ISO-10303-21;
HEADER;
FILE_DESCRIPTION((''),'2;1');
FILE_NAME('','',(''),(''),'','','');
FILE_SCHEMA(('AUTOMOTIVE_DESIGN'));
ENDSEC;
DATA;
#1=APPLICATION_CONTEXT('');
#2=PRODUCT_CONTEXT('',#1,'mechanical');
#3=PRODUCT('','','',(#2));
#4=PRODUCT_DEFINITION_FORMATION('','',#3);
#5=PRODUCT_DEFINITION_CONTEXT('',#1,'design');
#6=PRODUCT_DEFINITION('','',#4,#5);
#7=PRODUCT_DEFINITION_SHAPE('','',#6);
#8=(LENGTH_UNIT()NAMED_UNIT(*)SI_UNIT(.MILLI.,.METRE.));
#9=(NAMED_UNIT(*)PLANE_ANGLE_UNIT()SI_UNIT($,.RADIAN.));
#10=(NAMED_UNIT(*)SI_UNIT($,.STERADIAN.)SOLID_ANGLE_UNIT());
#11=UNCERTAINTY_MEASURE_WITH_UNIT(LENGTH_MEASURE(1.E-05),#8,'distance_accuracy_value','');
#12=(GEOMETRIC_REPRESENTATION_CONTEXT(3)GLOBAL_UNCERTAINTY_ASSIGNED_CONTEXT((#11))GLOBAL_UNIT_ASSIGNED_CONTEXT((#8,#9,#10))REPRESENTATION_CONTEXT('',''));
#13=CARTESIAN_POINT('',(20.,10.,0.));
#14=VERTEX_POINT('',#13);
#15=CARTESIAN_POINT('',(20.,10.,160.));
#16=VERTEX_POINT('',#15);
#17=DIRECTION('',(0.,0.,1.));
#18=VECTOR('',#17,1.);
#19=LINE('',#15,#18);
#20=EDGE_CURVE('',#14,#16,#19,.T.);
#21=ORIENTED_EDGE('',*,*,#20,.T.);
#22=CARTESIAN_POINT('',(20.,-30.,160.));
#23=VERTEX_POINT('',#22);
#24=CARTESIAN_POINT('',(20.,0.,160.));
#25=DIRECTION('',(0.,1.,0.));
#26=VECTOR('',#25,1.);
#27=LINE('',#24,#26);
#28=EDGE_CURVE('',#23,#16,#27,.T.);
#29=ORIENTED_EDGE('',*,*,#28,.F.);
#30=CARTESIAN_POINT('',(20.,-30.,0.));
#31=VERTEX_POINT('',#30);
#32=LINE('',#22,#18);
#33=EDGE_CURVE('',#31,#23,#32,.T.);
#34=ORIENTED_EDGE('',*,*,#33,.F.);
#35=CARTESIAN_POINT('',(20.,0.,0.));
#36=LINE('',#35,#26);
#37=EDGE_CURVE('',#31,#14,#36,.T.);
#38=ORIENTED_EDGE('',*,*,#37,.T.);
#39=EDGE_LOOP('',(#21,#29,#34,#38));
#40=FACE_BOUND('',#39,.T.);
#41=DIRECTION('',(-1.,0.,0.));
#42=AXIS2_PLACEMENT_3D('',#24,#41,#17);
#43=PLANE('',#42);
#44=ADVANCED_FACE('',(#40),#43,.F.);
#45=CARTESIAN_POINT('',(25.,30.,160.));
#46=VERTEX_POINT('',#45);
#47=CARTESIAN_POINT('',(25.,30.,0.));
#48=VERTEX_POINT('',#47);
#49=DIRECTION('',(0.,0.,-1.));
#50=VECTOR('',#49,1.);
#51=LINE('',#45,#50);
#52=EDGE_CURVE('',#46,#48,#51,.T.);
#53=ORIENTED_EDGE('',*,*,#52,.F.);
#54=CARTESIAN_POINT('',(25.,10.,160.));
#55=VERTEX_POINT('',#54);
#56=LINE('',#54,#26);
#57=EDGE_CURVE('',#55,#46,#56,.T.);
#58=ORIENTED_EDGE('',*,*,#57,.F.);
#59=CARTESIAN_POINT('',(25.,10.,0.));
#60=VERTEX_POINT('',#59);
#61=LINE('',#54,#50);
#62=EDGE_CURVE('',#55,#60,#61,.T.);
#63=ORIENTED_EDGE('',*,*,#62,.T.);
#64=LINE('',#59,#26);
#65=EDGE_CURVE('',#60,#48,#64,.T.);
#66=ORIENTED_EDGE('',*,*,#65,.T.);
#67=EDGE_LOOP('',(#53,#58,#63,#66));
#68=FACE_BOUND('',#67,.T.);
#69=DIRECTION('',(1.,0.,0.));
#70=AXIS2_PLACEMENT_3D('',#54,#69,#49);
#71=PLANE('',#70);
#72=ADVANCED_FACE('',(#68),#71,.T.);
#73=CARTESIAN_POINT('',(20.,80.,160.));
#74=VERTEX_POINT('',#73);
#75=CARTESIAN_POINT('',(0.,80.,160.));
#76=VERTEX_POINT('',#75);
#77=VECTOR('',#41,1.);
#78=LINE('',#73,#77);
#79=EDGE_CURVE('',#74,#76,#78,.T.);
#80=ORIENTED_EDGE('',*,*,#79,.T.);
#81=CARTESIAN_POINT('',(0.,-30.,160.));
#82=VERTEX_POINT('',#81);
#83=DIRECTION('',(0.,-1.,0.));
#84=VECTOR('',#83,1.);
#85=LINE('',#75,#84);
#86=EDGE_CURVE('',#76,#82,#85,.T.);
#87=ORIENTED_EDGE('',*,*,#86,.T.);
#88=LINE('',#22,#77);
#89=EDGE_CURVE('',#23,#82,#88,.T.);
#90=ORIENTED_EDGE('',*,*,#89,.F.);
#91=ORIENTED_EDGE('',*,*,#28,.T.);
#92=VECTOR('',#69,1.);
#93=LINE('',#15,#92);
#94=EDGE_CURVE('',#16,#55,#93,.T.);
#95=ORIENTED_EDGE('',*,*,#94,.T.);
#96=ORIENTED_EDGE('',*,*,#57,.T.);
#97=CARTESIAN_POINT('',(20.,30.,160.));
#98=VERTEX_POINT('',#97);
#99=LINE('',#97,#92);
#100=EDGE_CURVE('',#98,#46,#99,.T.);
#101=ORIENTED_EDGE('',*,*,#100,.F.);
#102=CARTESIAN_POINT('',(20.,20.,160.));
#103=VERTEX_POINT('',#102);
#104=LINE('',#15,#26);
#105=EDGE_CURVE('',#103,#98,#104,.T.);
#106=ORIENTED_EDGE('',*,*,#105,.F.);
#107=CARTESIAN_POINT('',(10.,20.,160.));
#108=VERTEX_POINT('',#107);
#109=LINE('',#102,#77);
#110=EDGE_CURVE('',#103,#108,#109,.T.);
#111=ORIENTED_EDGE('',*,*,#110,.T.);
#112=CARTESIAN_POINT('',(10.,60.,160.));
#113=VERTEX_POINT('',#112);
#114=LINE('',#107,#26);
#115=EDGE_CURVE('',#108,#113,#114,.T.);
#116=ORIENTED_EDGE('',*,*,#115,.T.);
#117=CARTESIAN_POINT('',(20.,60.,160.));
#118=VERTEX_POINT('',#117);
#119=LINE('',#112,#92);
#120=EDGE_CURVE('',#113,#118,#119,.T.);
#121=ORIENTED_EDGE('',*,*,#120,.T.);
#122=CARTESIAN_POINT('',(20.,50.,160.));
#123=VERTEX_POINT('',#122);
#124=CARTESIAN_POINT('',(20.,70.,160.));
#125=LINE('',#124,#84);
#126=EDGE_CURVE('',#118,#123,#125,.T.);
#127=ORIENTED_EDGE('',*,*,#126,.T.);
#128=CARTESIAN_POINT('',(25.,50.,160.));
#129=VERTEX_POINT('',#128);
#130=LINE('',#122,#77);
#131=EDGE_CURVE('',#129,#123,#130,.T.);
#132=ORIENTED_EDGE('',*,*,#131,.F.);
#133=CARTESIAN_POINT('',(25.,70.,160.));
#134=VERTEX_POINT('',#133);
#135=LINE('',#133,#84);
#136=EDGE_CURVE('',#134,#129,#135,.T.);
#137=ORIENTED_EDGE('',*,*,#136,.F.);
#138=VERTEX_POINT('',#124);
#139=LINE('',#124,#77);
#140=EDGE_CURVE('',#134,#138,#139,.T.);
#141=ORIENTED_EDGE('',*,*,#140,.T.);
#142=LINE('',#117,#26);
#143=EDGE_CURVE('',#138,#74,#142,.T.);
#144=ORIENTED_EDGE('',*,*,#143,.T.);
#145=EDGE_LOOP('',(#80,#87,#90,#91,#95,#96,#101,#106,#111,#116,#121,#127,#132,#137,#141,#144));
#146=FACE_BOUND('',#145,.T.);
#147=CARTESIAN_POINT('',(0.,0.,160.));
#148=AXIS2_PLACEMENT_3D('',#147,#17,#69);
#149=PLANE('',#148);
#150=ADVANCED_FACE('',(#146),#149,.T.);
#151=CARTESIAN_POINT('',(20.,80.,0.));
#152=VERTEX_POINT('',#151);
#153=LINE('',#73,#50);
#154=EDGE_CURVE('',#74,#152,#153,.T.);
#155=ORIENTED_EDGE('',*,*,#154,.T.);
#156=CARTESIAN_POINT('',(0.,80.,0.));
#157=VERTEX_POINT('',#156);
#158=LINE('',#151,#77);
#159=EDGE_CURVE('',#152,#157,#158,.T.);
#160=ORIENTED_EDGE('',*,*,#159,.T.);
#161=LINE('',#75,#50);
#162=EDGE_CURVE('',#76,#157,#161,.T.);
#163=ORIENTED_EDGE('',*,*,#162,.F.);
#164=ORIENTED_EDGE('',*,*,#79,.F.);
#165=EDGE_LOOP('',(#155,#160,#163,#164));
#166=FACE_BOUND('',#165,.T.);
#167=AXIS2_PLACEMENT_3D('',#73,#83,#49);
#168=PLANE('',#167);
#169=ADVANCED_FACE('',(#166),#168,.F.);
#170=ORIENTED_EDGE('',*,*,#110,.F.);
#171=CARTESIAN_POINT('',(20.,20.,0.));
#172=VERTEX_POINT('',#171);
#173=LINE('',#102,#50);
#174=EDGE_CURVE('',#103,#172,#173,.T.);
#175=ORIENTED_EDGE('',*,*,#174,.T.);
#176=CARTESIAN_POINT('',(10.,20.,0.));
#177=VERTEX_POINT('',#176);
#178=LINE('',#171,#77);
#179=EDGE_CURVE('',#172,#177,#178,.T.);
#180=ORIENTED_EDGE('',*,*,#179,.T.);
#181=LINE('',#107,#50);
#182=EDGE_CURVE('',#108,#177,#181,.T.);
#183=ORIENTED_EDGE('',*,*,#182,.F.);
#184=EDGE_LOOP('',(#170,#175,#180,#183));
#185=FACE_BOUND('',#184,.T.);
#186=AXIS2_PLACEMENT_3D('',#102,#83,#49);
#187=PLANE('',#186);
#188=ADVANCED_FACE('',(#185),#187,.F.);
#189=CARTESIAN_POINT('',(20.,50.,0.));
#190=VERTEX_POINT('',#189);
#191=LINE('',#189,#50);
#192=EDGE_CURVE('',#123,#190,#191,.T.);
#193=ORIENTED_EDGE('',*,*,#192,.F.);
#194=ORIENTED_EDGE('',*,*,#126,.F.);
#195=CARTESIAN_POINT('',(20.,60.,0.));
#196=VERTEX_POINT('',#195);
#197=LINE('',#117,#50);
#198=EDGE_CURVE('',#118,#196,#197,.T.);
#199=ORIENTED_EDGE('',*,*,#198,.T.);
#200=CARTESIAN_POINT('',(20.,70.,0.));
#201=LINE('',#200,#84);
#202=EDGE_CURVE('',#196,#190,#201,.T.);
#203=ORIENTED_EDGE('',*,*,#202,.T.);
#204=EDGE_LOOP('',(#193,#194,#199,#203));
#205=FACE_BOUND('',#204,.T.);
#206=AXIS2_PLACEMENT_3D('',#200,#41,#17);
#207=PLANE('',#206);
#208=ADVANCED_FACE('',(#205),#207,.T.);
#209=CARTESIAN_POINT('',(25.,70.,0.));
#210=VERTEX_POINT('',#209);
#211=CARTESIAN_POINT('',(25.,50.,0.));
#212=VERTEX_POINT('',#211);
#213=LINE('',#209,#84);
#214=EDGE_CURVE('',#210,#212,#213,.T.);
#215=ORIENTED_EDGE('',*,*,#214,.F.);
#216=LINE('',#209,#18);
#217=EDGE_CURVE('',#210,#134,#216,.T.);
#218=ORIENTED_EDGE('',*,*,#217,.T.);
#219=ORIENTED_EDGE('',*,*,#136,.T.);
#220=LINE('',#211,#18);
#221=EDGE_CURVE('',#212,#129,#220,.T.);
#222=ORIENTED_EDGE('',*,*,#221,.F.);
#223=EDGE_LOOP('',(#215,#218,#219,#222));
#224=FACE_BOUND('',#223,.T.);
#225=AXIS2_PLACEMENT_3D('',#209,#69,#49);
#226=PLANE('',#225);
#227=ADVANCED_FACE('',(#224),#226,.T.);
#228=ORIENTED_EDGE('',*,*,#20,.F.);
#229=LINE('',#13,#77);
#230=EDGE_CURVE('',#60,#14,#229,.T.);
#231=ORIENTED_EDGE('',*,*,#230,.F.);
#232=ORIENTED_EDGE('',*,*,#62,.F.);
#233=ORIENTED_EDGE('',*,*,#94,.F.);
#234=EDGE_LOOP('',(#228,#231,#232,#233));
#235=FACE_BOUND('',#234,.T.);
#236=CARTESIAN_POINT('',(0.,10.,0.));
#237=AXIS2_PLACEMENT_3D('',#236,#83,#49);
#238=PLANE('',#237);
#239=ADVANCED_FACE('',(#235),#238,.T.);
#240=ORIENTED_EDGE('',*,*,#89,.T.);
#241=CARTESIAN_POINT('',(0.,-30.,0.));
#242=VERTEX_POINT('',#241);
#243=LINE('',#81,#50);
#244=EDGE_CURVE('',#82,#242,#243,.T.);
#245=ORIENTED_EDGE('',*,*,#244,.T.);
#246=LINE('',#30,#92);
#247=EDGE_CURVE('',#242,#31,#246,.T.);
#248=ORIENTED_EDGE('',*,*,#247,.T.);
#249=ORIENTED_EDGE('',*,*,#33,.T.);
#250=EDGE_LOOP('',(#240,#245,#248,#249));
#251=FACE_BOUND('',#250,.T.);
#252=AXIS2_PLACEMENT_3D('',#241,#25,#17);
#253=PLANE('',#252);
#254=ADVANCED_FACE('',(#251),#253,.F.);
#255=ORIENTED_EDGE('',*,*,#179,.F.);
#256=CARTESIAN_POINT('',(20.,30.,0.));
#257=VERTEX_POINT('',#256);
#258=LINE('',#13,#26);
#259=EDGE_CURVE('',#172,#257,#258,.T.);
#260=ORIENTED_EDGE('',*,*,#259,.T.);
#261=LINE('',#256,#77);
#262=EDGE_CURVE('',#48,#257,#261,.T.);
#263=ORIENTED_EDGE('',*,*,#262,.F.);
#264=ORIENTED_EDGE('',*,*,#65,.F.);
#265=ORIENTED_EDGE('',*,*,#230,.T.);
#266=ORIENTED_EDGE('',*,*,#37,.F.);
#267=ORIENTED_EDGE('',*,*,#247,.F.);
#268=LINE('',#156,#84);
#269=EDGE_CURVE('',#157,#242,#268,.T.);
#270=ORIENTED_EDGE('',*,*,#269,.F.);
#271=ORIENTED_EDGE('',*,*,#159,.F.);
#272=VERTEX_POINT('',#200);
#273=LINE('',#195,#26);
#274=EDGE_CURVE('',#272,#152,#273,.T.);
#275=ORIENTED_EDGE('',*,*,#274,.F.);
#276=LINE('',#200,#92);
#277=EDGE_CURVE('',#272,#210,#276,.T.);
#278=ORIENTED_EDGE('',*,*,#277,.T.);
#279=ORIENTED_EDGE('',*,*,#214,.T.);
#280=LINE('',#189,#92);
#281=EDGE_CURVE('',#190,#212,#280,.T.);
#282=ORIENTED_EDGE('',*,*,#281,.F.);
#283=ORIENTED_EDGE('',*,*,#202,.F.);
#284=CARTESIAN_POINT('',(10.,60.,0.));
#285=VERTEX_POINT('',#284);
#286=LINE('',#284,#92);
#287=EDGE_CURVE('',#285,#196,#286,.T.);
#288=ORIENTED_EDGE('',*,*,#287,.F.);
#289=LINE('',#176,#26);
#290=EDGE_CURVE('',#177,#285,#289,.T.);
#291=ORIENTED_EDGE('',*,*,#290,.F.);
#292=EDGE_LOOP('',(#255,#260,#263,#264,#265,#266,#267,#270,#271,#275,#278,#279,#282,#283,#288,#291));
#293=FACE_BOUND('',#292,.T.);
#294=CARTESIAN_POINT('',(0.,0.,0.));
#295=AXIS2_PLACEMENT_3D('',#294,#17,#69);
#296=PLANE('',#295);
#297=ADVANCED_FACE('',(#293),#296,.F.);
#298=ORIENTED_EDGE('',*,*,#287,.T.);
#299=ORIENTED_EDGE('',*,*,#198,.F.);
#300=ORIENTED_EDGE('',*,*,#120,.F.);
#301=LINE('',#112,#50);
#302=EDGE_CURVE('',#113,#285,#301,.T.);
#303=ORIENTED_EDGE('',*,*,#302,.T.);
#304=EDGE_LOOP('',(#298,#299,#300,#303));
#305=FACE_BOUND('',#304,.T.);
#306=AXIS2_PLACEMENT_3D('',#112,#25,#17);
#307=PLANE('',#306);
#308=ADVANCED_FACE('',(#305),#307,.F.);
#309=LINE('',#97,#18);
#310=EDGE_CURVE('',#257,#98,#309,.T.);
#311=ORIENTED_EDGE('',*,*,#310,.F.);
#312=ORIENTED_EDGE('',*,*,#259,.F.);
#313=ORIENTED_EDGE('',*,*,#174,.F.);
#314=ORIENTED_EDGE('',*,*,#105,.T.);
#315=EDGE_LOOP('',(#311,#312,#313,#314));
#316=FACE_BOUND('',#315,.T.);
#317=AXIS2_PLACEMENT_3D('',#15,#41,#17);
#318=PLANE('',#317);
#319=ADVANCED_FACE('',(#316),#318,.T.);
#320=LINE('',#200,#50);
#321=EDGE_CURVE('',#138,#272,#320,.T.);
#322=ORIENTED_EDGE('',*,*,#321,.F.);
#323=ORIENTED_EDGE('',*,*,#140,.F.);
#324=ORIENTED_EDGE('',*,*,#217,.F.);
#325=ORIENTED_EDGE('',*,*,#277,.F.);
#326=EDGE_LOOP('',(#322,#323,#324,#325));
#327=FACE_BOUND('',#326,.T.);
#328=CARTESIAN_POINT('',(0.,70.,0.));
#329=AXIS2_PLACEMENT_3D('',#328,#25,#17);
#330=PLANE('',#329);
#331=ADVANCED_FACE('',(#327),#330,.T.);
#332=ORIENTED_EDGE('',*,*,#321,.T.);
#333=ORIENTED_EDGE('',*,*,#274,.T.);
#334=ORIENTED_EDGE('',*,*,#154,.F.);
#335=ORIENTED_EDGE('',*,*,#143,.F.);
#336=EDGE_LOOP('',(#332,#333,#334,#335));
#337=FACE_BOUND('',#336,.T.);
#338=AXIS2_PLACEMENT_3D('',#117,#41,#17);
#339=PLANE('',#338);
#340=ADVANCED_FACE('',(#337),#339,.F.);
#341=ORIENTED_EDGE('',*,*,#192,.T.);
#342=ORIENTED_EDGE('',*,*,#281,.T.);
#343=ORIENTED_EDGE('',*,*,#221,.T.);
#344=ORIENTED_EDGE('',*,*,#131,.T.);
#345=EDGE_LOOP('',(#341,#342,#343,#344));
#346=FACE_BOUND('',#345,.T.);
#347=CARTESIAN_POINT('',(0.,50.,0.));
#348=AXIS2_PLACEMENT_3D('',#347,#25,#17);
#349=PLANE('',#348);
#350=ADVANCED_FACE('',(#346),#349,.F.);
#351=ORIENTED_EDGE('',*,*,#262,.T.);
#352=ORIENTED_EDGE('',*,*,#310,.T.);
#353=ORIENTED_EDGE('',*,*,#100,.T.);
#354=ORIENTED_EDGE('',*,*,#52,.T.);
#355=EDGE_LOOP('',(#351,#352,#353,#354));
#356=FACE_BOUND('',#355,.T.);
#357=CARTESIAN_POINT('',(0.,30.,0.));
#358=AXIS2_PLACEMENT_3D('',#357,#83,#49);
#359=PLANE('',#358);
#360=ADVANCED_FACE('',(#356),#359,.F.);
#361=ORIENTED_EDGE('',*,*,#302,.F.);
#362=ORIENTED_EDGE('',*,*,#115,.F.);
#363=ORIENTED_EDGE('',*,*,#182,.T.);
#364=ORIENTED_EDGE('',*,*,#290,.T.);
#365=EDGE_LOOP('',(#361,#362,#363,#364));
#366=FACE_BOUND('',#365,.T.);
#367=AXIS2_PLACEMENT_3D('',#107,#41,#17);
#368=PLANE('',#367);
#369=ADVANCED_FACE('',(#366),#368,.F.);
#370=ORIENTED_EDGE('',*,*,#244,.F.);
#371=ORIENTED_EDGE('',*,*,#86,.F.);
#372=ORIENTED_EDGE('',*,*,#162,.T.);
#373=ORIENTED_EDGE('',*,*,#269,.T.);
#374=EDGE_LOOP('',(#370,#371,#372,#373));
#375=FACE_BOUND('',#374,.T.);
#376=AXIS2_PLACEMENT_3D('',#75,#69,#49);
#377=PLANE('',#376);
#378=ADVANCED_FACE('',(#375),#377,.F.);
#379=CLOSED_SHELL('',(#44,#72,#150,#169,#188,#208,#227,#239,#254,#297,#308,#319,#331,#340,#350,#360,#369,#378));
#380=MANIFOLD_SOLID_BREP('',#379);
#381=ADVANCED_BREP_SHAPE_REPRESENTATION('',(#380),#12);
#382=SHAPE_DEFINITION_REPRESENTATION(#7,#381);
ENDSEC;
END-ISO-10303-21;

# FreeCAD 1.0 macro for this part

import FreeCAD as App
import Part
import Sketcher

V = App.Vector
Q = App.Units.Quantity


def add_polygon(sketch, points):
    """Adds a closed chain of lines whose ends are joined by coincident constraints."""
    first, n = sketch.GeometryCount, len(points)
    for a, b in zip(points, points[1:] + points[:1]):
        sketch.addGeometry(Part.LineSegment(App.Vector(*a, 0), App.Vector(*b, 0)), False)
    for i in range(n):
        sketch.addConstraint(Sketcher.Constraint("Coincident", first + i, 2, first + (i + 1) % n, 1))

doc = App.newDocument("Part")
body = doc.addObject("PartDesign::Body", "Body")

# Sketch on XY plane
sketch1 = body.newObject("Sketcher::SketchObject", "Sketch")
sketch1.AttachmentSupport = (doc.getObject("XY_Plane"), [""])
sketch1.MapMode = "FlatFace"
add_polygon(sketch1, [(0, 0), (20, 0), (20, 20), (10, 20), (10, 60), (20, 60), (20, 80), (0, 80)])  # lines 0-7
sketch1.addConstraint([
    Sketcher.Constraint("Horizontal", 0),
    Sketcher.Constraint("Vertical", 1),
    Sketcher.Constraint("Horizontal", 2),
    Sketcher.Constraint("Vertical", 3),
    Sketcher.Constraint("Horizontal", 4),
    Sketcher.Constraint("Vertical", 5),
    Sketcher.Constraint("Horizontal", 6),
    Sketcher.Constraint("Vertical", 7),
    Sketcher.Constraint("Coincident", 7, 2, -1, 1),
    Sketcher.Constraint("Vertical", 1, 2, 4, 2),
    Sketcher.Constraint("Equal", 6, 1),
    Sketcher.Constraint("Equal", 1, 5),
    Sketcher.Constraint("DistanceX", 0, 1, 0, 2, Q("20 mm")),
    Sketcher.Constraint("DistanceX", 2, 2, 2, 1, Q("10 mm")),
    Sketcher.Constraint("DistanceY", 3, 1, 3, 2, Q("40 mm")),
])
pad1 = body.newObject("PartDesign::Pad", "Pad")
pad1.Profile = sketch1
pad1.Length = 160

# Sketch on XZ plane
sketch2 = body.newObject("Sketcher::SketchObject", "Sketch001")
sketch2.AttachmentSupport = (doc.getObject("XZ_Plane"), [""])
sketch2.MapMode = "FlatFace"
add_polygon(sketch2, [(0, 160), (0, 0), (20, 0), (20, 160)])  # lines 0-3
sketch2.addConstraint([
    Sketcher.Constraint("Vertical", 0),
    Sketcher.Constraint("Horizontal", 1),
    Sketcher.Constraint("Vertical", 2),
    Sketcher.Constraint("Horizontal", 3),
    Sketcher.Constraint("Coincident", 0, 2, -1, 1),
    Sketcher.Constraint("DistanceX", 1, 1, 1, 2, Q("20 mm")),
    Sketcher.Constraint("DistanceY", 0, 2, 0, 1, Q("160 mm")),
])
pad2 = body.newObject("PartDesign::Pad", "Pad001")
pad2.Profile = sketch2
pad2.Length = 30

# Sketch on XZ plane
sketch3 = body.newObject("Sketcher::SketchObject", "Sketch002")
sketch3.AttachmentSupport = (doc.getObject("XZ_Plane"), [""])
sketch3.MapMode = "FlatFace"
sketch3.AttachmentOffset = App.Placement(V(0, 0, -20), App.Rotation())
add_polygon(sketch3, [(20, 0), (20, 160), (25, 160), (25, 0)])  # lines 0-3
sketch3.addConstraint([
    Sketcher.Constraint("Vertical", 0),
    Sketcher.Constraint("Horizontal", 1),
    Sketcher.Constraint("Vertical", 2),
    Sketcher.Constraint("Horizontal", 3),
    Sketcher.Constraint("PointOnObject", 2, 2, -1),
    Sketcher.Constraint("DistanceX", 1, 1, 1, 2, Q("5 mm")),
    Sketcher.Constraint("DistanceY", 0, 1, 0, 2, Q("160 mm")),
    Sketcher.Constraint("DistanceX", -1, 1, 0, 2, Q("20 mm")),
])
pad3 = body.newObject("PartDesign::Pad", "Pad002")
pad3.Profile = sketch3
pad3.Type = "TwoLengths"
pad3.Length = 10
pad3.Length2 = 10
pad3.Reversed = True

# Sketch on XZ plane
sketch4 = body.newObject("Sketcher::SketchObject", "Sketch003")
sketch4.AttachmentSupport = (doc.getObject("XZ_Plane"), [""])
sketch4.MapMode = "FlatFace"
sketch4.AttachmentOffset = App.Placement(V(0, 0, -60), App.Rotation())
add_polygon(sketch4, [(20, 160), (20, 0), (25, 0), (25, 160)])  # lines 0-3
sketch4.addConstraint([
    Sketcher.Constraint("Vertical", 0),
    Sketcher.Constraint("Horizontal", 1),
    Sketcher.Constraint("Vertical", 2),
    Sketcher.Constraint("Horizontal", 3),
    Sketcher.Constraint("PointOnObject", 0, 2, -1),
    Sketcher.Constraint("DistanceX", 1, 1, 1, 2, Q("5 mm")),
    Sketcher.Constraint("DistanceY", 0, 2, 0, 1, Q("160 mm")),
    Sketcher.Constraint("DistanceX", -1, 1, 0, 2, Q("20 mm")),
])
pad4 = body.newObject("PartDesign::Pad", "Pad003")
pad4.Profile = sketch4
pad4.Type = "TwoLengths"
pad4.Length = 10
pad4.Length2 = 10

doc.recompute()
